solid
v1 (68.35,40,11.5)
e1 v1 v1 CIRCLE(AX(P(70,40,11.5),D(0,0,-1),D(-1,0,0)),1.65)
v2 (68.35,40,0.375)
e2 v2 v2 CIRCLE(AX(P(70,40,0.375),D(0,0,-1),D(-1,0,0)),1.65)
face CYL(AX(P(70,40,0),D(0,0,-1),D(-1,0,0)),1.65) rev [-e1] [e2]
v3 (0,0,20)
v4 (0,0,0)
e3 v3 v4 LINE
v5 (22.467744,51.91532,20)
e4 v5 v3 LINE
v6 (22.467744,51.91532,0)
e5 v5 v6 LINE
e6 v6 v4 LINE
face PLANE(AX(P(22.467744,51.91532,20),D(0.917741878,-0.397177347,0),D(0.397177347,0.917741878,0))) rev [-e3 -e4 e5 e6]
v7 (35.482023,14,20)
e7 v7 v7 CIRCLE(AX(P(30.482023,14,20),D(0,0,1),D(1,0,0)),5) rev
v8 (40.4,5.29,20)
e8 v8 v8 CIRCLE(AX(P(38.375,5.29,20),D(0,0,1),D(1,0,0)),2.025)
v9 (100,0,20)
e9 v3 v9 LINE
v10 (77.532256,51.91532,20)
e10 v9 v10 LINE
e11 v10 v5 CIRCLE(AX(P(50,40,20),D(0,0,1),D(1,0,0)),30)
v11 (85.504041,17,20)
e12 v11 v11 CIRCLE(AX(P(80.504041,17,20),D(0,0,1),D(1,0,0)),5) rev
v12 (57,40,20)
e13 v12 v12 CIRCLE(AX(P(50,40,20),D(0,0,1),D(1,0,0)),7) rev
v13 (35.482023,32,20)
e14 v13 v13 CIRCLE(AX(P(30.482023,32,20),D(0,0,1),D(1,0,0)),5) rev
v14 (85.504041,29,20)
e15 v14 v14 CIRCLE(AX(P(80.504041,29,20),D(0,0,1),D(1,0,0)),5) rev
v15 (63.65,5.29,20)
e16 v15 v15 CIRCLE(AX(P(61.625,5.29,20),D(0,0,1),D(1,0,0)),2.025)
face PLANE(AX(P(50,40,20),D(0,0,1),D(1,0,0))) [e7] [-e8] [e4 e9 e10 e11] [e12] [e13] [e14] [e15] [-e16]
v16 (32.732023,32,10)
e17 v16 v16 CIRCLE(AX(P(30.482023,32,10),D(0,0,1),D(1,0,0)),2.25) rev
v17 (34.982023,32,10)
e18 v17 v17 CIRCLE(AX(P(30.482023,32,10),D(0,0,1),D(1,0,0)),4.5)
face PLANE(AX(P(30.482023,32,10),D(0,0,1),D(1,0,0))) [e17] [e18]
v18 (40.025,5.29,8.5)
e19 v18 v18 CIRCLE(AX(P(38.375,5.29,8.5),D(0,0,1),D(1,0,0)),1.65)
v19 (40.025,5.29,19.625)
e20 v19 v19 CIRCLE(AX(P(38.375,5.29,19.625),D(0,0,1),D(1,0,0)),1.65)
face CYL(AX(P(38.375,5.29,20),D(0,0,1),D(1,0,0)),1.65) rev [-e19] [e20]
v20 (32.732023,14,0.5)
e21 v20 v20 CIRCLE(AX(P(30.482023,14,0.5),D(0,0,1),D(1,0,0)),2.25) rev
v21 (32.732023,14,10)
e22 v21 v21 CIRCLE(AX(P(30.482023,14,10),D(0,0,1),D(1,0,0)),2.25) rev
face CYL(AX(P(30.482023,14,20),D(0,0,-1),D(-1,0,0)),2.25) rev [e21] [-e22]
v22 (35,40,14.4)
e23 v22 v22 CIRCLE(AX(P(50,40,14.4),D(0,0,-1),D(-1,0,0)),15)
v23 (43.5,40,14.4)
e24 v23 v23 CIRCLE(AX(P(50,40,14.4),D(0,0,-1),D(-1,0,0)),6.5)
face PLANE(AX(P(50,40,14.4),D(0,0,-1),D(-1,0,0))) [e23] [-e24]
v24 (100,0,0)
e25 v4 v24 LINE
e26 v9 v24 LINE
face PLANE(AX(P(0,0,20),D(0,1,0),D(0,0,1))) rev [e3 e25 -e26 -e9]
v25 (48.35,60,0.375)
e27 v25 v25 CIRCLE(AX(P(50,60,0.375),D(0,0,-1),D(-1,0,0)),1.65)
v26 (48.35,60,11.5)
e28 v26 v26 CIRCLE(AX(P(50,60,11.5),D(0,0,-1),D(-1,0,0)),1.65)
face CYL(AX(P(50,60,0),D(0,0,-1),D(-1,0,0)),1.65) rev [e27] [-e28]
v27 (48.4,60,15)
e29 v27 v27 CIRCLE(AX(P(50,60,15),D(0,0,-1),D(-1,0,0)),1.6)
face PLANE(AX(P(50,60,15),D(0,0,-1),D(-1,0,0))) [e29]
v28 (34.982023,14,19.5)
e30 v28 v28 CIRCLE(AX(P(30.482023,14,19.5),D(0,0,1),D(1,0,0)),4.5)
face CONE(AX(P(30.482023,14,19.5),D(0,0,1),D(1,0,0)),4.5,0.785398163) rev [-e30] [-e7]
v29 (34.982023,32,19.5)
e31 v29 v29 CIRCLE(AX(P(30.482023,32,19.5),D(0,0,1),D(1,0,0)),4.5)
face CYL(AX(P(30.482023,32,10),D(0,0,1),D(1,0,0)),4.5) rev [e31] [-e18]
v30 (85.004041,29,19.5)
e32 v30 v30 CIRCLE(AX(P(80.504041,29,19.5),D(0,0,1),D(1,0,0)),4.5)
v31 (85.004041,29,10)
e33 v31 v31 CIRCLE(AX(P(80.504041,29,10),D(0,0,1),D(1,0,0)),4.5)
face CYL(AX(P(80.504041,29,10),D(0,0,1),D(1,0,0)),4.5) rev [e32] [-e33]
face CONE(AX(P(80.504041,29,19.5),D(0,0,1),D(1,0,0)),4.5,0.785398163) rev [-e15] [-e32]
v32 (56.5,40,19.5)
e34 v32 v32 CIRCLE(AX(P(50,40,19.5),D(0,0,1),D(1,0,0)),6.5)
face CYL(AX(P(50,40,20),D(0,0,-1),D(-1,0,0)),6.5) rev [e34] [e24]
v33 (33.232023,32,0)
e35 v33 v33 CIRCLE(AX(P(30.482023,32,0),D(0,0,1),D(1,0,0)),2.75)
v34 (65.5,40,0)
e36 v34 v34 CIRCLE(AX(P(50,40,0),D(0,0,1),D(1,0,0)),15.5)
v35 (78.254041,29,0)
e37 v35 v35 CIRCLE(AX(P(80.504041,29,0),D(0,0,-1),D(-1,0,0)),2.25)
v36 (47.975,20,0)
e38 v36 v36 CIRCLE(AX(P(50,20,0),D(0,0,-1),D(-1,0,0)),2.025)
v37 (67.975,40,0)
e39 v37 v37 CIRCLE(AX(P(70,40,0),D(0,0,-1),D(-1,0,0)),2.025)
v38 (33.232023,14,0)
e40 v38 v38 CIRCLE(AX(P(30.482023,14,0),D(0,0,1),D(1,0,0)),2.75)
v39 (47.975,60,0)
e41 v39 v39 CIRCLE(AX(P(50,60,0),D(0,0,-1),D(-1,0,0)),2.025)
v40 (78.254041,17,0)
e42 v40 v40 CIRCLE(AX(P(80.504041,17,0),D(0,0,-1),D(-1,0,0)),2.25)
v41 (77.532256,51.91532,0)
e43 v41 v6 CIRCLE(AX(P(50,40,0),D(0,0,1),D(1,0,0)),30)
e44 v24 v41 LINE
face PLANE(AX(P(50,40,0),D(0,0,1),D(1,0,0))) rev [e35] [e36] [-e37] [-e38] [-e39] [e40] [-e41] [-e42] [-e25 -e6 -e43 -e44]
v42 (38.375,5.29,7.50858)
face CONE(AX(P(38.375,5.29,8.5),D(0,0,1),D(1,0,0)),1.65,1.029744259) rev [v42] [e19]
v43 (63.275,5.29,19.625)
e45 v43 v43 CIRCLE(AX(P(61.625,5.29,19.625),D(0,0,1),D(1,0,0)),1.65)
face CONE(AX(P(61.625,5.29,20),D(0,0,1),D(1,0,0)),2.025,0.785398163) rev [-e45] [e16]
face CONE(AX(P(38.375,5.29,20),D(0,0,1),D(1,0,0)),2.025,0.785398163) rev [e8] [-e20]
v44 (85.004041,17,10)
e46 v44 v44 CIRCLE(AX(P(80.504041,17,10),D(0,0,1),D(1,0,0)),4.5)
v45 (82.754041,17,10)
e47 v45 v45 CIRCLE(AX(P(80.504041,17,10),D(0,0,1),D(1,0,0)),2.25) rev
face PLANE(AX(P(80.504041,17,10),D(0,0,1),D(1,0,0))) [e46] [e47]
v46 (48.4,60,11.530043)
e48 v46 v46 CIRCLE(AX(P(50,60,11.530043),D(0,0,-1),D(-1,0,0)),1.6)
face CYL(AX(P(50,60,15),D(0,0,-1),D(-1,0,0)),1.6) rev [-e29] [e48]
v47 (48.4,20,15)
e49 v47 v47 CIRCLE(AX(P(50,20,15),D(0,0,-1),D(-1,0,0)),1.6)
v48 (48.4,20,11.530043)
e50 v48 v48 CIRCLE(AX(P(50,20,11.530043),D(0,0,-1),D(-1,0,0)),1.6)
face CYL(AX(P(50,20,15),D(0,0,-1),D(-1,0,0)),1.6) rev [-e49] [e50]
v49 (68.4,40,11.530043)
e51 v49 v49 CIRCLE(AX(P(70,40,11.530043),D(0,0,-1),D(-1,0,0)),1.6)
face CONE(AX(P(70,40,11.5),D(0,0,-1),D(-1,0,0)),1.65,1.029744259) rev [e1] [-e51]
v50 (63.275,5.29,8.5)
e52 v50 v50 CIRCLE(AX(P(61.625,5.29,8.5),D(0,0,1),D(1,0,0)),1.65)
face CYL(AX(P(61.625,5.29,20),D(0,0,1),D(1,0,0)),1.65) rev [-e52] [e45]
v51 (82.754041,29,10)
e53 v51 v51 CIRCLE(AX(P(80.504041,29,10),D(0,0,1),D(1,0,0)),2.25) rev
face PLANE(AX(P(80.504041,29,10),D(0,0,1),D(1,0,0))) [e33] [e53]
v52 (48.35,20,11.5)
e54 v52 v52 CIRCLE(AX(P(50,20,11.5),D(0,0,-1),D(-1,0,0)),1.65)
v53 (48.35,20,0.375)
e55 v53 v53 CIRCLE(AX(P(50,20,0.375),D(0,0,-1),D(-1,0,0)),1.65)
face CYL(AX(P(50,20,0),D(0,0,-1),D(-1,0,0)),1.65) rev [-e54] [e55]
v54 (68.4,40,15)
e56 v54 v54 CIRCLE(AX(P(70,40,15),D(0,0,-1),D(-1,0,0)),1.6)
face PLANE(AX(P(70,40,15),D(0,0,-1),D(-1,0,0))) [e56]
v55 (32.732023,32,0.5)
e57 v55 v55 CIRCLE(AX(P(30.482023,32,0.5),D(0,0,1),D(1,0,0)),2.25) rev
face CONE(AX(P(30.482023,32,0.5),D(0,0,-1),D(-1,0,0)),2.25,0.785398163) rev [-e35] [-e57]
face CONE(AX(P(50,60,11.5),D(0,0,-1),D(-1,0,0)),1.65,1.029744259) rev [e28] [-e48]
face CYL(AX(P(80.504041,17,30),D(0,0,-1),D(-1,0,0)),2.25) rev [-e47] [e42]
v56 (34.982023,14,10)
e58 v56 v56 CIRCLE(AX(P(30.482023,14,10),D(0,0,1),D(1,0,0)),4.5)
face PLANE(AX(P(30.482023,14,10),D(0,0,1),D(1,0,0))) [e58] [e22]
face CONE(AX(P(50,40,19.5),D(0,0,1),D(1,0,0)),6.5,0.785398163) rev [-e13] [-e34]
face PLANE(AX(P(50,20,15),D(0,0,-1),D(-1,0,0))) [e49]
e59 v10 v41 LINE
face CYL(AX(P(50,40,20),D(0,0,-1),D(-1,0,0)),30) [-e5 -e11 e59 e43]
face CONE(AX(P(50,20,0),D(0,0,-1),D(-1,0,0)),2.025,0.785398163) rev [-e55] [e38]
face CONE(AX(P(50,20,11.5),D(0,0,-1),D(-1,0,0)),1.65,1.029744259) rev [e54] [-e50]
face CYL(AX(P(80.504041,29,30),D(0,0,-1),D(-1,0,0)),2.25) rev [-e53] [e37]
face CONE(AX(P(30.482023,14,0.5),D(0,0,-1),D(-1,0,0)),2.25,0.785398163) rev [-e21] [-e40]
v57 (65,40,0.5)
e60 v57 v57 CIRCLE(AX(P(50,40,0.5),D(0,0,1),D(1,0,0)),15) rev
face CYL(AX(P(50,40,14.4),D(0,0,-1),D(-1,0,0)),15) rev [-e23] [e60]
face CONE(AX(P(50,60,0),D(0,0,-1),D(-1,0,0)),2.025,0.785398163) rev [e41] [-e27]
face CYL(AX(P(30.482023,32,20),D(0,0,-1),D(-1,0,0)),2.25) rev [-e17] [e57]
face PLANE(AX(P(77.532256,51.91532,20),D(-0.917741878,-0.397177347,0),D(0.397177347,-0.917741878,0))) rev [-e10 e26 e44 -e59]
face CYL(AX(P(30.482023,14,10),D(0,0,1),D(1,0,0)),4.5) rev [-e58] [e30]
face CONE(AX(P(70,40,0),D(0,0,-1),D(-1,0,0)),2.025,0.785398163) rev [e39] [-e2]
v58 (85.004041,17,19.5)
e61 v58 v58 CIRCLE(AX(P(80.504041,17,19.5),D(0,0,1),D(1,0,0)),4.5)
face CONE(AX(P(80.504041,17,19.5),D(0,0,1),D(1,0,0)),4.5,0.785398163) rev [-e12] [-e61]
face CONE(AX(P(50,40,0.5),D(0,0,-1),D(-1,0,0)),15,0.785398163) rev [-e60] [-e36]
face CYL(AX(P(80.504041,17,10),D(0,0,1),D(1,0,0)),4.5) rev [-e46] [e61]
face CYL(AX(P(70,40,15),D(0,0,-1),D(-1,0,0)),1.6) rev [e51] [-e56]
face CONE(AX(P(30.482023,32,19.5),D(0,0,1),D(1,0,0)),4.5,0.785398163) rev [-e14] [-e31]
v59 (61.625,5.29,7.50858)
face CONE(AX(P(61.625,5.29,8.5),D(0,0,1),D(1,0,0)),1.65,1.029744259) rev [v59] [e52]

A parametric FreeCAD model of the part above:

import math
import FreeCAD as App
import Part
import Sketcher

V = App.Vector


def edges_at(feature, points):
    """Names of the edges that pass closest to the given points."""
    edges = feature.Shape.Edges
    near = lambda p: min(range(len(edges)), key=lambda i: edges[i].distToShape(Part.Vertex(*p))[0])
    return sorted({f"Edge{near(p) + 1}" for p in points})

doc = App.newDocument("Part")
params = doc.addObject("Spreadsheet::Sheet", "Params")
for row, (alias, value) in enumerate([
    ("sketch1_diameter", "13 mm"),
    ("sketch1_radius", "30 mm"),
    ("sketch1_width", "100 mm"),
    ("pad1_length", "20 mm"),
    ("sketch2_diameter", "30 mm"),
    ("pocket1_length", "14.4 mm"),
    ("sketch3_diameter", "3.3 mm"),
    ("hole_diameter", "3.3 mm"),
    ("hole_depth", "11.5 mm"),
    ("hole_csink_diameter", "4.05 mm"),
    ("sketch4_diameter", "4.5 mm"),
    ("pocket2_length", "20 mm"),
    ("sketch5_diameter", "9 mm"),
    ("pocket3_length", "10 mm"),
    ("chamfer_size", "0.5 mm"),
    ("chamfer2_size", "0.5 mm"),
    ("sketch6_diameter", "3.2 mm"),
    ("pocket4_length", "15 mm"),
    ("sketch7_diameter", "3.3 mm"),
    ("hole2_diameter", "3.3 mm"),
    ("hole2_depth", "11.5 mm"),
    ("hole2_csink_diameter", "4.05 mm"),
    ("sketch8_diameter", "4.5 mm"),
    ("pocket5_length", "30 mm"),
    ("sketch9_diameter", "9 mm"),
    ("pocket6_length", "10 mm"),
    ("chamfer3_size", "0.5 mm"),
], start=1):
    params.set(f"A{row}", alias)
    params.set(f"B{row}", "=" + value)
    params.setAlias(f"B{row}", alias)

body = doc.addObject("PartDesign::Body", "Body")

sketch1 = body.newObject("Sketcher::SketchObject", "Sketch")
sketch1.AttachmentSupport = (doc.getObject("XY_Plane"), [""])
sketch1.MapMode = "FlatFace"
sketch1.addGeometry([
    Part.LineSegment(V(0, 0, 0), V(100, 0, 0)),
    Part.LineSegment(V(100, 0, 0), V(78, 52, 0)),
    Part.ArcOfCircle(Part.Circle(V(50, 40, 0), V(0, 0, 1), 30), math.radians(23), math.radians(157)),
    Part.LineSegment(V(22, 52, 0), V(0, 0, 0)),
    Part.Circle(V(50, 40, 0), V(0, 0, 1), 6),
], False)
sketch1.addConstraint([
    Sketcher.Constraint("Coincident", 0, 2, 1, 1),
    Sketcher.Constraint("Tangent", 1, 2, 2, 1),
    Sketcher.Constraint("Tangent", 2, 2, 3, 1),
    Sketcher.Constraint("Coincident", 3, 2, 0, 1),
    Sketcher.Constraint("Horizontal", 0),
    Sketcher.Constraint("Coincident", 3, 2, -1, 1),
    Sketcher.Constraint("Coincident", 4, 3, 2, 3),
    Sketcher.Constraint("Horizontal", 1, 2, 2, 2),
    Sketcher.Constraint("Diameter", 4, 13.0),
    Sketcher.Constraint("Radius", 2, 30.0),
    Sketcher.Constraint("DistanceX", 0, 1, 0, 2, 100.0),
    Sketcher.Constraint("DistanceY", -1, 1, 2, 3, 40.0),
])
sketch1.setExpression("Constraints[8]", "Params.sketch1_diameter")
sketch1.setExpression("Constraints[9]", "Params.sketch1_radius")
sketch1.setExpression("Constraints[10]", "Params.sketch1_width")
pad1 = body.newObject("PartDesign::Pad", "Pad")
pad1.Profile = sketch1
pad1.setExpression("Length", "Params.pad1_length")

sketch2 = body.newObject("Sketcher::SketchObject", "Sketch001")
sketch2.AttachmentSupport = (doc.getObject("XY_Plane"), [""])
sketch2.MapMode = "FlatFace"
sketch2.addGeometry(Part.Circle(V(50, 40, 0), V(0, 0, 1), 15), False)
sketch2.addConstraint([
    Sketcher.Constraint("Diameter", 0, 30.0),
    Sketcher.Constraint("DistanceX", -1, 1, 0, 3, 50.0),
    Sketcher.Constraint("DistanceY", -1, 1, 0, 3, 40.0),
])
sketch2.setExpression("Constraints[0]", "Params.sketch2_diameter")
pocket1 = body.newObject("PartDesign::Pocket", "Pocket")
pocket1.Profile = sketch2
pocket1.setExpression("Length", "Params.pocket1_length")
pocket1.Reversed = True

sketch3 = body.newObject("Sketcher::SketchObject", "Sketch002")
sketch3.AttachmentSupport = (doc.getObject("XY_Plane"), [""])
sketch3.MapMode = "FlatFace"
sketch3.AttachmentOffset = App.Placement(V(0, 0, 20), App.Rotation())
sketch3.addGeometry([
    Part.Circle(V(38.4, 5.3, 0), V(0, 0, 1), 1.6),
    Part.Circle(V(61.6, 5.3, 0), V(0, 0, 1), 1.6),
], False)
sketch3.addConstraint([
    Sketcher.Constraint("Equal", 0, 1),
    Sketcher.Constraint("Horizontal", 0, 3, 1, 3),
    Sketcher.Constraint("Diameter", 0, 3.3),
    Sketcher.Constraint("DistanceY", -1, 1, 0, 3, 5.29),
    Sketcher.Constraint("DistanceX", 0, 3, 1, 3, 23.25),
    Sketcher.Constraint("DistanceX", -1, 1, 0, 3, 38.375),
])
sketch3.setExpression("Constraints[2]", "Params.sketch3_diameter")
doc.recompute()
hole = body.newObject("PartDesign::Hole", "Hole")
hole.Profile = sketch3
hole.ThreadType = "None"
hole.setExpression("Diameter", "Params.hole_diameter")
hole.DepthType = "Dimension"
hole.setExpression("Depth", "Params.hole_depth")
hole.DrillPoint = "Angled"
hole.DrillPointAngle = 118
hole.HoleCutType = "Countersink"
hole.setExpression("HoleCutDiameter", "Params.hole_csink_diameter")
hole.HoleCutCountersinkAngle = 90

sketch4 = body.newObject("Sketcher::SketchObject", "Sketch003")
sketch4.AttachmentSupport = (doc.getObject("XY_Plane"), [""])
sketch4.MapMode = "FlatFace"
sketch4.addGeometry([
    Part.Circle(V(30.5, 32, 0), V(0, 0, 1), 2.2),
    Part.Circle(V(30.5, 14, 0), V(0, 0, 1), 2.2),
], False)
sketch4.addConstraint([
    Sketcher.Constraint("Equal", 0, 1),
    Sketcher.Constraint("Vertical", 0, 3, 1, 3),
    Sketcher.Constraint("Diameter", 0, 4.5),
    Sketcher.Constraint("DistanceY", -1, 1, 0, 3, 32.0),
    Sketcher.Constraint("DistanceY", -1, 1, 1, 3, 14.0),
    Sketcher.Constraint("DistanceX", -1, 1, 0, 3, 30.482023),
])
sketch4.setExpression("Constraints[2]", "Params.sketch4_diameter")
pocket2 = body.newObject("PartDesign::Pocket", "Pocket001")
pocket2.Profile = sketch4
pocket2.setExpression("Length", "Params.pocket2_length")
pocket2.Reversed = True

sketch5 = body.newObject("Sketcher::SketchObject", "Sketch004")
sketch5.AttachmentSupport = (doc.getObject("XY_Plane"), [""])
sketch5.MapMode = "FlatFace"
sketch5.AttachmentOffset = App.Placement(V(0, 0, 20), App.Rotation())
sketch5.addGeometry([
    Part.Circle(V(30.5, 32, 0), V(0, 0, 1), 4.5),
    Part.Circle(V(30.5, 14, 0), V(0, 0, 1), 4.5),
], False)
sketch5.addConstraint([
    Sketcher.Constraint("Equal", 0, 1),
    Sketcher.Constraint("Vertical", 0, 3, 1, 3),
    Sketcher.Constraint("Diameter", 0, 9.0),
    Sketcher.Constraint("DistanceY", -1, 1, 0, 3, 32.0),
    Sketcher.Constraint("DistanceY", -1, 1, 1, 3, 14.0),
    Sketcher.Constraint("DistanceX", -1, 1, 0, 3, 30.482023),
])
sketch5.setExpression("Constraints[2]", "Params.sketch5_diameter")
pocket3 = body.newObject("PartDesign::Pocket", "Pocket002")
pocket3.Profile = sketch5
pocket3.setExpression("Length", "Params.pocket3_length")
doc.recompute()

chamfer = body.newObject("PartDesign::Chamfer", "Chamfer")
chamfer.Base = (pocket3, edges_at(pocket3, [(43.5, 40, 20), (25.982, 32, 20), (25.982, 14, 20)]))
chamfer.setExpression("Size", "Params.chamfer_size")
doc.recompute()

chamfer2 = body.newObject("PartDesign::Chamfer", "Chamfer001")
chamfer2.Base = (chamfer, edges_at(chamfer, [(65, 40, 0), (32.732, 32, 0), (32.732, 14, 0)]))
chamfer2.setExpression("Size", "Params.chamfer2_size")

sketch6 = body.newObject("Sketcher::SketchObject", "Sketch005")
sketch6.AttachmentSupport = (doc.getObject("XY_Plane"), [""])
sketch6.MapMode = "FlatFace"
sketch6.addGeometry([
    Part.Circle(V(50, 60, 0), V(0, 0, 1), 1.6),
    Part.Circle(V(70, 40, 0), V(0, 0, 1), 1.6),
    Part.Circle(V(50, 20, 0), V(0, 0, 1), 1.6),
], False)
sketch6.addConstraint([
    Sketcher.Constraint("Equal", 0, 1),
    Sketcher.Constraint("Equal", 1, 2),
    Sketcher.Constraint("Vertical", 0, 3, 2, 3),
    Sketcher.Constraint("Diameter", 0, 3.2),
    Sketcher.Constraint("DistanceX", -1, 1, 0, 3, 50.0),
    Sketcher.Constraint("DistanceY", -1, 1, 0, 3, 60.0),
    Sketcher.Constraint("DistanceX", -1, 1, 1, 3, 70.0),
    Sketcher.Constraint("DistanceY", -1, 1, 1, 3, 40.0),
    Sketcher.Constraint("DistanceY", -1, 1, 2, 3, 20.0),
])
sketch6.setExpression("Constraints[3]", "Params.sketch6_diameter")
pocket4 = body.newObject("PartDesign::Pocket", "Pocket003")
pocket4.Profile = sketch6
pocket4.setExpression("Length", "Params.pocket4_length")
pocket4.Reversed = True

sketch7 = body.newObject("Sketcher::SketchObject", "Sketch006")
sketch7.AttachmentSupport = (doc.getObject("XY_Plane"), [""])
sketch7.MapMode = "FlatFace"
sketch7.addGeometry([
    Part.Circle(V(70, 40, 0), V(0, 0, 1), 1.6),
    Part.Circle(V(50, 60, 0), V(0, 0, 1), 1.6),
    Part.Circle(V(50, 20, 0), V(0, 0, 1), 1.6),
], False)
sketch7.addConstraint([
    Sketcher.Constraint("Equal", 0, 1),
    Sketcher.Constraint("Equal", 1, 2),
    Sketcher.Constraint("Vertical", 1, 3, 2, 3),
    Sketcher.Constraint("Diameter", 0, 3.3),
    Sketcher.Constraint("DistanceX", -1, 1, 0, 3, 70.0),
    Sketcher.Constraint("DistanceY", -1, 1, 0, 3, 40.0),
    Sketcher.Constraint("DistanceX", -1, 1, 1, 3, 50.0),
    Sketcher.Constraint("DistanceY", -1, 1, 1, 3, 60.0),
    Sketcher.Constraint("DistanceY", -1, 1, 2, 3, 20.0),
])
sketch7.setExpression("Constraints[3]", "Params.sketch7_diameter")
doc.recompute()
hole2 = body.newObject("PartDesign::Hole", "Hole001")
hole2.Profile = sketch7
hole2.ThreadType = "None"
hole2.setExpression("Diameter", "Params.hole2_diameter")
hole2.DepthType = "Dimension"
hole2.setExpression("Depth", "Params.hole2_depth")
hole2.DrillPoint = "Angled"
hole2.DrillPointAngle = 118
hole2.HoleCutType = "Countersink"
hole2.setExpression("HoleCutDiameter", "Params.hole2_csink_diameter")
hole2.HoleCutCountersinkAngle = 90
hole2.Reversed = True

sketch8 = body.newObject("Sketcher::SketchObject", "Sketch007")
sketch8.AttachmentSupport = (doc.getObject("XY_Plane"), [""])
sketch8.MapMode = "FlatFace"
sketch8.addGeometry([
    Part.Circle(V(80.5, 29, 0), V(0, 0, 1), 2.2),
    Part.Circle(V(80.5, 17, 0), V(0, 0, 1), 2.2),
], False)
sketch8.addConstraint([
    Sketcher.Constraint("Equal", 0, 1),
    Sketcher.Constraint("Vertical", 0, 3, 1, 3),
    Sketcher.Constraint("Diameter", 0, 4.5),
    Sketcher.Constraint("DistanceY", -1, 1, 0, 3, 29.0),
    Sketcher.Constraint("DistanceY", -1, 1, 1, 3, 17.0),
    Sketcher.Constraint("DistanceX", -1, 1, 0, 3, 80.504041),
])
sketch8.setExpression("Constraints[2]", "Params.sketch8_diameter")
pocket5 = body.newObject("PartDesign::Pocket", "Pocket004")
pocket5.Profile = sketch8
pocket5.setExpression("Length", "Params.pocket5_length")
pocket5.Reversed = True

sketch9 = body.newObject("Sketcher::SketchObject", "Sketch008")
sketch9.AttachmentSupport = (doc.getObject("XY_Plane"), [""])
sketch9.MapMode = "FlatFace"
sketch9.AttachmentOffset = App.Placement(V(0, 0, 20), App.Rotation())
sketch9.addGeometry([
    Part.Circle(V(80.5, 29, 0), V(0, 0, 1), 4.5),
    Part.Circle(V(80.5, 17, 0), V(0, 0, 1), 4.5),
], False)
sketch9.addConstraint([
    Sketcher.Constraint("Equal", 0, 1),
    Sketcher.Constraint("Vertical", 0, 3, 1, 3),
    Sketcher.Constraint("Diameter", 0, 9.0),
    Sketcher.Constraint("DistanceY", -1, 1, 0, 3, 29.0),
    Sketcher.Constraint("DistanceY", -1, 1, 1, 3, 17.0),
    Sketcher.Constraint("DistanceX", -1, 1, 0, 3, 80.504041),
])
sketch9.setExpression("Constraints[2]", "Params.sketch9_diameter")
pocket6 = body.newObject("PartDesign::Pocket", "Pocket005")
pocket6.Profile = sketch9
pocket6.setExpression("Length", "Params.pocket6_length")
doc.recompute()

chamfer3 = body.newObject("PartDesign::Chamfer", "Chamfer002")
chamfer3.Base = (pocket6, edges_at(pocket6, [(76.004, 29, 20), (76.004, 17, 20)]))
chamfer3.setExpression("Size", "Params.chamfer3_size")

doc.recompute()
